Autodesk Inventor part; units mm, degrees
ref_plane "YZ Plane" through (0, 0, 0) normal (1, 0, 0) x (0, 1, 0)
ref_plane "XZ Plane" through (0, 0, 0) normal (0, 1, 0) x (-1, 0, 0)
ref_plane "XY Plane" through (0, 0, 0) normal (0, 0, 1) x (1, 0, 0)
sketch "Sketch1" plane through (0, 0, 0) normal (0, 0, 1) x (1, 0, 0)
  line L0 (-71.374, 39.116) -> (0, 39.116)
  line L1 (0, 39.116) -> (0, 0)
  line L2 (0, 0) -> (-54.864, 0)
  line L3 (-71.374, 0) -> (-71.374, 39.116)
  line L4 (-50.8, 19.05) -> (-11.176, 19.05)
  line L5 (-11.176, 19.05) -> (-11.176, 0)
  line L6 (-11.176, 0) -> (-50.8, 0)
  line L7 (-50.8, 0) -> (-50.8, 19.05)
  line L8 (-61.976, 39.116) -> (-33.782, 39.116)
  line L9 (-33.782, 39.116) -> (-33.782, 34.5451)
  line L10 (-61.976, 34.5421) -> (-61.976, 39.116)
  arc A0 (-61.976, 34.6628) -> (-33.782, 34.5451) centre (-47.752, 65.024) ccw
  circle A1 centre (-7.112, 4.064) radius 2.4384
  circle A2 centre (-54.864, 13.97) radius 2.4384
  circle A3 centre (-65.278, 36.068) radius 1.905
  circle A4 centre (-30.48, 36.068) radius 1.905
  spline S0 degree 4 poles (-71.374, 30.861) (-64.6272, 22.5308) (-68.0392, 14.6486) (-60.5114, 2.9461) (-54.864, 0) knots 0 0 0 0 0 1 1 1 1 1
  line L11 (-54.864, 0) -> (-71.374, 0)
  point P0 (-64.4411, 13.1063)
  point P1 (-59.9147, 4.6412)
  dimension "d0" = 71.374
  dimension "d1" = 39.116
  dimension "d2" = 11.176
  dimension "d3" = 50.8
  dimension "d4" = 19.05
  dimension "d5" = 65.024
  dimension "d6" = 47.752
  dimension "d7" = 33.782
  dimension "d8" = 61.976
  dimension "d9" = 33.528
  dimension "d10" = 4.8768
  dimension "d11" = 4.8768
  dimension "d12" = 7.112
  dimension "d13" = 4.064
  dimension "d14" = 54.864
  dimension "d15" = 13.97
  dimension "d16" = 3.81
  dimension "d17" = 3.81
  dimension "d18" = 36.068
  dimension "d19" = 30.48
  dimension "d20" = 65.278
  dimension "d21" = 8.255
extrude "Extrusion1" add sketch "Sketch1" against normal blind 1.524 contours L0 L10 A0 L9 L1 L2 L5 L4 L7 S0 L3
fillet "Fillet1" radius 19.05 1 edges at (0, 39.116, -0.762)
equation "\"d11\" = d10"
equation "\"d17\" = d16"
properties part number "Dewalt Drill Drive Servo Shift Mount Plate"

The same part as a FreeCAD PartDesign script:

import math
import FreeCAD as App
import Part
import Sketcher

V = App.Vector
Q = App.Units.Quantity


def edges_at(feature, points):
    """Names of the edges that pass closest to the given points."""
    edges = feature.Shape.Edges
    near = lambda p: min(range(len(edges)), key=lambda i: edges[i].distToShape(Part.Vertex(*p))[0])
    return sorted({f"Edge{near(p) + 1}" for p in points})

doc = App.newDocument("Part")
body = doc.addObject("PartDesign::Body", "Body")

sketch1 = doc.addObject("Sketcher::SketchObject", "Sketch")
body.addObject(sketch1)
sketch1.AttachmentSupport = (doc.XY_Plane, [""])
sketch1.MapMode = "FlatFace"
sketch1.addGeometry(Part.LineSegment(V(-61.976, 39.116, 0), V(-71.374, 39.116, 0)), False)
sketch1.addGeometry(Part.LineSegment(V(-71.374, 39.116, 0), V(-71.374, 30.861, 0)), False)
sketch1.addGeometry(Part.BSplineCurve([V(-71.374, 30.861, 0), V(-64.6272, 22.5308, 0), V(-68.0392, 14.6486, 0), V(-60.5114, 2.9461, 0), V(-54.864, 0, 0)], [5, 5], [0, 1], False, 4, [1, 1, 1, 1, 1], False), False)
sketch1.addGeometry(Part.LineSegment(V(-54.864, 0, 0), V(-50.8, 0, 0)), False)
sketch1.addGeometry(Part.LineSegment(V(-50.8, 0, 0), V(-50.8, 19.05, 0)), False)
sketch1.addGeometry(Part.LineSegment(V(-50.8, 19.05, 0), V(-11.176, 19.05, 0)), False)
sketch1.addGeometry(Part.LineSegment(V(-11.176, 19.05, 0), V(-11.176, 0, 0)), False)
sketch1.addGeometry(Part.LineSegment(V(-11.176, 0, 0), V(0, 0, 0)), False)
sketch1.addGeometry(Part.LineSegment(V(0, 0, 0), V(0, 39.116, 0)), False)
sketch1.addGeometry(Part.LineSegment(V(0, 39.116, 0), V(-33.782, 39.116, 0)), False)
sketch1.addGeometry(Part.LineSegment(V(-33.782, 39.116, 0), V(-33.782, 34.5451, 0)), False)
sketch1.addGeometry(Part.ArcOfCircle(Part.Circle(V(-47.752, 65.024, 0), V(0, 0, 1), 33.527968), math.radians(-115.102746), math.radians(-65.375652)), False)
sketch1.addGeometry(Part.LineSegment(V(-61.976, 34.6628, 0), V(-61.976, 39.116, 0)), False)
sketch1.addGeometry(Part.Circle(V(-54.864, 13.97, 0), V(0, 0, 1), 2.4384), False)
sketch1.addGeometry(Part.Circle(V(-7.112, 4.064, 0), V(0, 0, 1), 2.4384), False)
sketch1.addGeometry(Part.Circle(V(-65.278, 36.068, 0), V(0, 0, 1), 1.905), False)
sketch1.addGeometry(Part.Circle(V(-30.48, 36.068, 0), V(0, 0, 1), 1.905), False)
sketch1.addConstraint(Sketcher.Constraint("Block", 2))
sketch1.addConstraint(Sketcher.Constraint("Coincident", 0, 2, 1, 1))
sketch1.addConstraint(Sketcher.Constraint("Coincident", 1, 2, 2, 1))
sketch1.addConstraint(Sketcher.Constraint("Coincident", 2, 2, 3, 1))
sketch1.addConstraint(Sketcher.Constraint("Coincident", 3, 2, 4, 1))
sketch1.addConstraint(Sketcher.Constraint("Coincident", 4, 2, 5, 1))
sketch1.addConstraint(Sketcher.Constraint("Coincident", 5, 2, 6, 1))
sketch1.addConstraint(Sketcher.Constraint("Coincident", 6, 2, 7, 1))
sketch1.addConstraint(Sketcher.Constraint("Coincident", 7, 2, 8, 1))
sketch1.addConstraint(Sketcher.Constraint("Coincident", 8, 2, 9, 1))
sketch1.addConstraint(Sketcher.Constraint("Coincident", 9, 2, 10, 1))
sketch1.addConstraint(Sketcher.Constraint("Coincident", 10, 2, 11, 2))
sketch1.addConstraint(Sketcher.Constraint("Coincident", 11, 1, 12, 1))
sketch1.addConstraint(Sketcher.Constraint("Coincident", 12, 2, 0, 1))
sketch1.addConstraint(Sketcher.Constraint("Horizontal", 0))
sketch1.addConstraint(Sketcher.Constraint("Vertical", 1))
sketch1.addConstraint(Sketcher.Constraint("Horizontal", 3))
sketch1.addConstraint(Sketcher.Constraint("Vertical", 4))
sketch1.addConstraint(Sketcher.Constraint("Horizontal", 5))
sketch1.addConstraint(Sketcher.Constraint("Vertical", 6))
sketch1.addConstraint(Sketcher.Constraint("Horizontal", 7))
sketch1.addConstraint(Sketcher.Constraint("Vertical", 8))
sketch1.addConstraint(Sketcher.Constraint("Horizontal", 9))
sketch1.addConstraint(Sketcher.Constraint("Vertical", 10))
sketch1.addConstraint(Sketcher.Constraint("Vertical", 12))
sketch1.addConstraint(Sketcher.Constraint("Coincident", 7, 2, -1, 1))
sketch1.addConstraint(Sketcher.Constraint("Equal", 13, 14))
sketch1.addConstraint(Sketcher.Constraint("Equal", 15, 16))
sketch1.addConstraint(Sketcher.Constraint("Horizontal", 15, 3, 16, 3))
sketch1.addConstraint(Sketcher.Constraint("Horizontal", 0, 2, 8, 2))
sketch1.addConstraint(Sketcher.Constraint("Diameter", 15, Q("0.15 in")))
sketch1.addConstraint(Sketcher.Constraint("Radius", 11, Q("1.32 in")))
sketch1.addConstraint(Sketcher.Constraint("Diameter", 13, Q("0.192 in")))
sketch1.addConstraint(Sketcher.Constraint("DistanceX", 3, 2, -1, 1, Q("2 in")))
sketch1.addConstraint(Sketcher.Constraint("DistanceX", 7, 1, 7, 2, Q("0.44 in")))
sketch1.addConstraint(Sketcher.Constraint("DistanceX", 9, 2, 9, 1, Q("1.33 in")))
sketch1.addConstraint(Sketcher.Constraint("DistanceY", 4, 1, 4, 2, Q("0.75 in")))
sketch1.addConstraint(Sketcher.Constraint("DistanceY", 8, 1, 8, 2, Q("1.54 in")))
sketch1.addConstraint(Sketcher.Constraint("DistanceX", 16, 3, -1, 1, Q("1.2 in")))
sketch1.addConstraint(Sketcher.Constraint("DistanceX", 11, 3, -1, 1, Q("1.88 in")))
sketch1.addConstraint(Sketcher.Constraint("DistanceY", -1, 1, 11, 3, Q("2.56 in")))
sketch1.addConstraint(Sketcher.Constraint("DistanceX", 13, 3, -1, 1, Q("2.16 in")))
sketch1.addConstraint(Sketcher.Constraint("DistanceY", -1, 1, 13, 3, Q("0.55 in")))
sketch1.addConstraint(Sketcher.Constraint("DistanceX", 14, 3, -1, 1, Q("0.28 in")))
sketch1.addConstraint(Sketcher.Constraint("DistanceY", -1, 1, 14, 3, Q("0.16 in")))
sketch1.addConstraint(Sketcher.Constraint("DistanceX", 15, 3, -1, 1, Q("2.57 in")))
sketch1.addConstraint(Sketcher.Constraint("DistanceY", -1, 1, 15, 3, Q("1.42 in")))
sketch1.addConstraint(Sketcher.Constraint("DistanceX", 11, 1, -1, 1, Q("2.44 in")))
pad1 = doc.addObject("PartDesign::Pad", "Pad")
body.addObject(pad1)
pad1.Profile = sketch1
pad1.Length = Q("0.06 in")
pad1.Reversed = True
doc.recompute()

fillet = doc.addObject("PartDesign::Fillet", "Fillet")
body.addObject(fillet)
fillet.Base = (pad1, edges_at(pad1, [(0, 39.116, -0.762)]))
fillet.Radius = Q("0.75 in")

doc.recompute()
